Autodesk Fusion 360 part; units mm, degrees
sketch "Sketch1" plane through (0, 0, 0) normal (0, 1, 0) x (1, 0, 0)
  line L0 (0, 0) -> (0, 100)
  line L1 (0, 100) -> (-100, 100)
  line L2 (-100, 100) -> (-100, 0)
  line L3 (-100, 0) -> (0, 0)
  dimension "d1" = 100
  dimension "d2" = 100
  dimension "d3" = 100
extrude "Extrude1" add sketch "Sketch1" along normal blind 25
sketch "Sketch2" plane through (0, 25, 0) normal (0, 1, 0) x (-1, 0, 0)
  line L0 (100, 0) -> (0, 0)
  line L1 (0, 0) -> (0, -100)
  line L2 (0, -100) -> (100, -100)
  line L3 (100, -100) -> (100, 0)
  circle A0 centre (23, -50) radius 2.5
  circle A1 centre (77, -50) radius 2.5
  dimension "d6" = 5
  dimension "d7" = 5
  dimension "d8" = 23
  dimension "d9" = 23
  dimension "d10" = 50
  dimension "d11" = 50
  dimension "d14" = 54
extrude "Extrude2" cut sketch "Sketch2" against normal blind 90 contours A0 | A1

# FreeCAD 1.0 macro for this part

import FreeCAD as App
import Part
import Sketcher

V = App.Vector


def add_polygon(sketch, points):
    """Adds a closed chain of lines whose ends are joined by coincident constraints."""
    first, n = sketch.GeometryCount, len(points)
    for a, b in zip(points, points[1:] + points[:1]):
        sketch.addGeometry(Part.LineSegment(App.Vector(*a, 0), App.Vector(*b, 0)), False)
    for i in range(n):
        sketch.addConstraint(Sketcher.Constraint("Coincident", first + i, 2, first + (i + 1) % n, 1))

doc = App.newDocument("Part")
params = doc.addObject("Spreadsheet::Sheet", "Params")
for row, (alias, value) in enumerate([
    ("sketch1_width", "100 mm"),
    ("pad1_length", "25 mm"),
    ("sketch2_diameter", "5 mm"),
    ("pocket1_length", "90 mm"),
], start=1):
    params.set(f"A{row}", alias)
    params.set(f"B{row}", "=" + value)
    params.setAlias(f"B{row}", alias)

body = doc.addObject("PartDesign::Body", "Body")

# Sketch on XZ plane
sketch1 = body.newObject("Sketcher::SketchObject", "Sketch")
sketch1.AttachmentSupport = (doc.getObject("XZ_Plane"), [""])
sketch1.MapMode = "FlatFace"
add_polygon(sketch1, [(-100, 0), (0, 0), (0, -100), (-100, -100)])  # lines 0-3
sketch1.addConstraint(Sketcher.Constraint("Horizontal", 0))
sketch1.addConstraint(Sketcher.Constraint("Vertical", 1))
sketch1.addConstraint(Sketcher.Constraint("Horizontal", 2))
sketch1.addConstraint(Sketcher.Constraint("Vertical", 3))
sketch1.addConstraint(Sketcher.Constraint("Coincident", 0, 2, -1, 1))
sketch1.addConstraint(Sketcher.Constraint("Equal", 2, 1))
sketch1.addConstraint(Sketcher.Constraint("DistanceX", 0, 1, 0, 2, 100.0))
sketch1.setExpression("Constraints[10]", "Params.sketch1_width")
pad1 = body.newObject("PartDesign::Pad", "Pad")
pad1.Profile = sketch1
pad1.setExpression("Length", "Params.pad1_length")
pad1.Reversed = True

# Sketch on XZ plane
sketch2 = body.newObject("Sketcher::SketchObject", "Sketch001")
sketch2.AttachmentSupport = (doc.getObject("XZ_Plane"), [""])
sketch2.MapMode = "FlatFace"
sketch2.AttachmentOffset = App.Placement(V(0, 0, -25), App.Rotation())
sketch2.addGeometry(Part.Circle(V(-23, -50, 0), V(0, 0, 1), 2.5), False)
sketch2.addGeometry(Part.Circle(V(-77, -50, 0), V(0, 0, 1), 2.5), False)
sketch2.addConstraint(Sketcher.Constraint("Equal", 0, 1))
sketch2.addConstraint(Sketcher.Constraint("Horizontal", 0, 3, 1, 3))
sketch2.addConstraint(Sketcher.Constraint("Diameter", 0, 5.0))
sketch2.addConstraint(Sketcher.Constraint("DistanceX", 0, 3, -1, 1, 23.0))
sketch2.addConstraint(Sketcher.Constraint("DistanceY", 0, 3, -1, 1, 50.0))
sketch2.addConstraint(Sketcher.Constraint("DistanceX", 1, 3, 0, 3, 54.0))
sketch2.setExpression("Constraints[2]", "Params.sketch2_diameter")
pocket1 = body.newObject("PartDesign::Pocket", "Pocket")
pocket1.Profile = sketch2
pocket1.setExpression("Length", "Params.pocket1_length")
pocket1.Reversed = True

doc.recompute()
